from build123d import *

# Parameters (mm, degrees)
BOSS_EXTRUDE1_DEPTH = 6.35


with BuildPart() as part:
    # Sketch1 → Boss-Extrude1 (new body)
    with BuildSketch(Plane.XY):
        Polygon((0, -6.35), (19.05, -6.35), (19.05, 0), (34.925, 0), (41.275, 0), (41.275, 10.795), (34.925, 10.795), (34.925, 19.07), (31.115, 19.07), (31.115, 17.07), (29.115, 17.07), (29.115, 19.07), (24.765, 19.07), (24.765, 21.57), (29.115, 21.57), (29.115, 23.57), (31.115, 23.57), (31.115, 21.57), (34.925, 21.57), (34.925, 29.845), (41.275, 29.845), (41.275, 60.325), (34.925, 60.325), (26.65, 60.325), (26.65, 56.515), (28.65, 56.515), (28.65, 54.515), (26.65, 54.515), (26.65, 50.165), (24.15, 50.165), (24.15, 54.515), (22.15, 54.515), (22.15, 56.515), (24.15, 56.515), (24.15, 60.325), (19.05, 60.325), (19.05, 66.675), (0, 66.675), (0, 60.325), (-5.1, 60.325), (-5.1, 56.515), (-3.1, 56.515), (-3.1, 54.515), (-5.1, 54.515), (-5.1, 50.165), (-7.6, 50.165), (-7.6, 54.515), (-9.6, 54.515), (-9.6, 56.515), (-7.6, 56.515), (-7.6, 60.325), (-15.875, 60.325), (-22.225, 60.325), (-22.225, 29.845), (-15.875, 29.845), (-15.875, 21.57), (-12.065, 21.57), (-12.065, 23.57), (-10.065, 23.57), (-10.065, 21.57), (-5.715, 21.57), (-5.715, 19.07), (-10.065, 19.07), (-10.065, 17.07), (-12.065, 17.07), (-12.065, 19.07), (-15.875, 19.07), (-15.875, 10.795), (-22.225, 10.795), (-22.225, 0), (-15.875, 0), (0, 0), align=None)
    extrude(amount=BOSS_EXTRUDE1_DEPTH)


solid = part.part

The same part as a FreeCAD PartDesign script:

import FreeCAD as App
import Part
import Sketcher

V = App.Vector
Q = App.Units.Quantity

doc = App.newDocument("Part")
body = doc.addObject("PartDesign::Body", "Body")

sketch1 = body.newObject("Sketcher::SketchObject", "Sketch")
sketch1.AttachmentSupport = (doc.getObject("XY_Plane"), [""])
sketch1.MapMode = "FlatFace"
sketch1.addGeometry(Part.LineSegment(V(0, -6.3, 0), V(19.1, -6.3, 0)), False)
sketch1.addGeometry(Part.LineSegment(V(19.1, -6.3, 0), V(19.1, 0, 0)), False)
sketch1.addGeometry(Part.LineSegment(V(19.1, 0, 0), V(41.3, 0, 0)), False)
sketch1.addGeometry(Part.LineSegment(V(41.3, 0, 0), V(41.3, 10.8, 0)), False)
sketch1.addGeometry(Part.LineSegment(V(41.3, 10.8, 0), V(34.9, 10.8, 0)), False)
sketch1.addGeometry(Part.LineSegment(V(34.9, 10.8, 0), V(34.9, 19.1, 0)), False)
sketch1.addGeometry(Part.LineSegment(V(34.9, 19.1, 0), V(31.1, 19.1, 0)), False)
sketch1.addGeometry(Part.LineSegment(V(31.1, 19.1, 0), V(31.1, 17.1, 0)), False)
sketch1.addGeometry(Part.LineSegment(V(31.1, 17.1, 0), V(29.1, 17.1, 0)), False)
sketch1.addGeometry(Part.LineSegment(V(29.1, 17.1, 0), V(29.1, 19.1, 0)), False)
sketch1.addGeometry(Part.LineSegment(V(29.1, 19.1, 0), V(24.8, 19.1, 0)), False)
sketch1.addGeometry(Part.LineSegment(V(24.8, 19.1, 0), V(24.8, 21.6, 0)), False)
sketch1.addGeometry(Part.LineSegment(V(24.8, 21.6, 0), V(29.1, 21.6, 0)), False)
sketch1.addGeometry(Part.LineSegment(V(29.1, 21.6, 0), V(29.1, 23.6, 0)), False)
sketch1.addGeometry(Part.LineSegment(V(29.1, 23.6, 0), V(31.1, 23.6, 0)), False)
sketch1.addGeometry(Part.LineSegment(V(31.1, 23.6, 0), V(31.1, 21.6, 0)), False)
sketch1.addGeometry(Part.LineSegment(V(31.1, 21.6, 0), V(34.9, 21.6, 0)), False)
sketch1.addGeometry(Part.LineSegment(V(34.9, 21.6, 0), V(34.9, 29.8, 0)), False)
sketch1.addGeometry(Part.LineSegment(V(34.9, 29.8, 0), V(41.3, 29.8, 0)), False)
sketch1.addGeometry(Part.LineSegment(V(41.3, 29.8, 0), V(41.3, 60.3, 0)), False)
sketch1.addGeometry(Part.LineSegment(V(41.3, 60.3, 0), V(26.6, 60.3, 0)), False)
sketch1.addGeometry(Part.LineSegment(V(26.6, 60.3, 0), V(26.6, 56.5, 0)), False)
sketch1.addGeometry(Part.LineSegment(V(26.6, 56.5, 0), V(28.6, 56.5, 0)), False)
sketch1.addGeometry(Part.LineSegment(V(28.6, 56.5, 0), V(28.6, 54.5, 0)), False)
sketch1.addGeometry(Part.LineSegment(V(28.6, 54.5, 0), V(26.6, 54.5, 0)), False)
sketch1.addGeometry(Part.LineSegment(V(26.6, 54.5, 0), V(26.6, 50.2, 0)), False)
sketch1.addGeometry(Part.LineSegment(V(26.6, 50.2, 0), V(24.1, 50.2, 0)), False)
sketch1.addGeometry(Part.LineSegment(V(24.1, 50.2, 0), V(24.1, 54.5, 0)), False)
sketch1.addGeometry(Part.LineSegment(V(24.1, 54.5, 0), V(22.1, 54.5, 0)), False)
sketch1.addGeometry(Part.LineSegment(V(22.1, 54.5, 0), V(22.1, 56.5, 0)), False)
sketch1.addGeometry(Part.LineSegment(V(22.1, 56.5, 0), V(24.1, 56.5, 0)), False)
sketch1.addGeometry(Part.LineSegment(V(24.1, 56.5, 0), V(24.1, 60.3, 0)), False)
sketch1.addGeometry(Part.LineSegment(V(24.1, 60.3, 0), V(19.1, 60.3, 0)), False)
sketch1.addGeometry(Part.LineSegment(V(19.1, 60.3, 0), V(19.1, 66.7, 0)), False)
sketch1.addGeometry(Part.LineSegment(V(19.1, 66.7, 0), V(0, 66.7, 0)), False)
sketch1.addGeometry(Part.LineSegment(V(0, 66.7, 0), V(0, 60.3, 0)), False)
sketch1.addGeometry(Part.LineSegment(V(0, 60.3, 0), V(-5.1, 60.3, 0)), False)
sketch1.addGeometry(Part.LineSegment(V(-5.1, 60.3, 0), V(-5.1, 56.5, 0)), False)
sketch1.addGeometry(Part.LineSegment(V(-5.1, 56.5, 0), V(-3.1, 56.5, 0)), False)
sketch1.addGeometry(Part.LineSegment(V(-3.1, 56.5, 0), V(-3.1, 54.5, 0)), False)
sketch1.addGeometry(Part.LineSegment(V(-3.1, 54.5, 0), V(-5.1, 54.5, 0)), False)
sketch1.addGeometry(Part.LineSegment(V(-5.1, 54.5, 0), V(-5.1, 50.2, 0)), False)
sketch1.addGeometry(Part.LineSegment(V(-5.1, 50.2, 0), V(-7.6, 50.2, 0)), False)
sketch1.addGeometry(Part.LineSegment(V(-7.6, 50.2, 0), V(-7.6, 54.5, 0)), False)
sketch1.addGeometry(Part.LineSegment(V(-7.6, 54.5, 0), V(-9.6, 54.5, 0)), False)
sketch1.addGeometry(Part.LineSegment(V(-9.6, 54.5, 0), V(-9.6, 56.5, 0)), False)
sketch1.addGeometry(Part.LineSegment(V(-9.6, 56.5, 0), V(-7.6, 56.5, 0)), False)
sketch1.addGeometry(Part.LineSegment(V(-7.6, 56.5, 0), V(-7.6, 60.3, 0)), False)
sketch1.addGeometry(Part.LineSegment(V(-7.6, 60.3, 0), V(-22.2, 60.3, 0)), False)
sketch1.addGeometry(Part.LineSegment(V(-22.2, 60.3, 0), V(-22.2, 29.8, 0)), False)
sketch1.addGeometry(Part.LineSegment(V(-22.2, 29.8, 0), V(-15.9, 29.8, 0)), False)
sketch1.addGeometry(Part.LineSegment(V(-15.9, 29.8, 0), V(-15.9, 21.6, 0)), False)
sketch1.addGeometry(Part.LineSegment(V(-15.9, 21.6, 0), V(-12.1, 21.6, 0)), False)
sketch1.addGeometry(Part.LineSegment(V(-12.1, 21.6, 0), V(-12.1, 23.6, 0)), False)
sketch1.addGeometry(Part.LineSegment(V(-12.1, 23.6, 0), V(-10.1, 23.6, 0)), False)
sketch1.addGeometry(Part.LineSegment(V(-10.1, 23.6, 0), V(-10.1, 21.6, 0)), False)
sketch1.addGeometry(Part.LineSegment(V(-10.1, 21.6, 0), V(-5.7, 21.6, 0)), False)
sketch1.addGeometry(Part.LineSegment(V(-5.7, 21.6, 0), V(-5.7, 19.1, 0)), False)
sketch1.addGeometry(Part.LineSegment(V(-5.7, 19.1, 0), V(-10.1, 19.1, 0)), False)
sketch1.addGeometry(Part.LineSegment(V(-10.1, 19.1, 0), V(-10.1, 17.1, 0)), False)
sketch1.addGeometry(Part.LineSegment(V(-10.1, 17.1, 0), V(-12.1, 17.1, 0)), False)
sketch1.addGeometry(Part.LineSegment(V(-12.1, 17.1, 0), V(-12.1, 19.1, 0)), False)
sketch1.addGeometry(Part.LineSegment(V(-12.1, 19.1, 0), V(-15.9, 19.1, 0)), False)
sketch1.addGeometry(Part.LineSegment(V(-15.9, 19.1, 0), V(-15.9, 10.8, 0)), False)
sketch1.addGeometry(Part.LineSegment(V(-15.9, 10.8, 0), V(-22.2, 10.8, 0)), False)
sketch1.addGeometry(Part.LineSegment(V(-22.2, 10.8, 0), V(-22.2, 0, 0)), False)
sketch1.addGeometry(Part.LineSegment(V(-22.2, 0, 0), V(0, 0, 0)), False)
sketch1.addGeometry(Part.LineSegment(V(0, 0, 0), V(0, -6.3, 0)), False)
sketch1.addConstraint(Sketcher.Constraint("Coincident", 0, 2, 1, 1))
sketch1.addConstraint(Sketcher.Constraint("Coincident", 1, 2, 2, 1))
sketch1.addConstraint(Sketcher.Constraint("Coincident", 2, 2, 3, 1))
sketch1.addConstraint(Sketcher.Constraint("Coincident", 3, 2, 4, 1))
sketch1.addConstraint(Sketcher.Constraint("Coincident", 4, 2, 5, 1))
sketch1.addConstraint(Sketcher.Constraint("Coincident", 5, 2, 6, 1))
sketch1.addConstraint(Sketcher.Constraint("Coincident", 6, 2, 7, 1))
sketch1.addConstraint(Sketcher.Constraint("Coincident", 7, 2, 8, 1))
sketch1.addConstraint(Sketcher.Constraint("Coincident", 8, 2, 9, 1))
sketch1.addConstraint(Sketcher.Constraint("Coincident", 9, 2, 10, 1))
sketch1.addConstraint(Sketcher.Constraint("Coincident", 10, 2, 11, 1))
sketch1.addConstraint(Sketcher.Constraint("Coincident", 11, 2, 12, 1))
sketch1.addConstraint(Sketcher.Constraint("Coincident", 12, 2, 13, 1))
sketch1.addConstraint(Sketcher.Constraint("Coincident", 13, 2, 14, 1))
sketch1.addConstraint(Sketcher.Constraint("Coincident", 14, 2, 15, 1))
sketch1.addConstraint(Sketcher.Constraint("Coincident", 15, 2, 16, 1))
sketch1.addConstraint(Sketcher.Constraint("Coincident", 16, 2, 17, 1))
sketch1.addConstraint(Sketcher.Constraint("Coincident", 17, 2, 18, 1))
sketch1.addConstraint(Sketcher.Constraint("Coincident", 18, 2, 19, 1))
sketch1.addConstraint(Sketcher.Constraint("Coincident", 19, 2, 20, 1))
sketch1.addConstraint(Sketcher.Constraint("Coincident", 20, 2, 21, 1))
sketch1.addConstraint(Sketcher.Constraint("Coincident", 21, 2, 22, 1))
sketch1.addConstraint(Sketcher.Constraint("Coincident", 22, 2, 23, 1))
sketch1.addConstraint(Sketcher.Constraint("Coincident", 23, 2, 24, 1))
sketch1.addConstraint(Sketcher.Constraint("Coincident", 24, 2, 25, 1))
sketch1.addConstraint(Sketcher.Constraint("Coincident", 25, 2, 26, 1))
sketch1.addConstraint(Sketcher.Constraint("Coincident", 26, 2, 27, 1))
sketch1.addConstraint(Sketcher.Constraint("Coincident", 27, 2, 28, 1))
sketch1.addConstraint(Sketcher.Constraint("Coincident", 28, 2, 29, 1))
sketch1.addConstraint(Sketcher.Constraint("Coincident", 29, 2, 30, 1))
sketch1.addConstraint(Sketcher.Constraint("Coincident", 30, 2, 31, 1))
sketch1.addConstraint(Sketcher.Constraint("Coincident", 31, 2, 32, 1))
sketch1.addConstraint(Sketcher.Constraint("Coincident", 32, 2, 33, 1))
sketch1.addConstraint(Sketcher.Constraint("Coincident", 33, 2, 34, 1))
sketch1.addConstraint(Sketcher.Constraint("Coincident", 34, 2, 35, 1))
sketch1.addConstraint(Sketcher.Constraint("Coincident", 35, 2, 36, 1))
sketch1.addConstraint(Sketcher.Constraint("Coincident", 36, 2, 37, 1))
sketch1.addConstraint(Sketcher.Constraint("Coincident", 37, 2, 38, 1))
sketch1.addConstraint(Sketcher.Constraint("Coincident", 38, 2, 39, 1))
sketch1.addConstraint(Sketcher.Constraint("Coincident", 39, 2, 40, 1))
sketch1.addConstraint(Sketcher.Constraint("Coincident", 40, 2, 41, 1))
sketch1.addConstraint(Sketcher.Constraint("Coincident", 41, 2, 42, 1))
sketch1.addConstraint(Sketcher.Constraint("Coincident", 42, 2, 43, 1))
sketch1.addConstraint(Sketcher.Constraint("Coincident", 43, 2, 44, 1))
sketch1.addConstraint(Sketcher.Constraint("Coincident", 44, 2, 45, 1))
sketch1.addConstraint(Sketcher.Constraint("Coincident", 45, 2, 46, 1))
sketch1.addConstraint(Sketcher.Constraint("Coincident", 46, 2, 47, 1))
sketch1.addConstraint(Sketcher.Constraint("Coincident", 47, 2, 48, 1))
sketch1.addConstraint(Sketcher.Constraint("Coincident", 48, 2, 49, 1))
sketch1.addConstraint(Sketcher.Constraint("Coincident", 49, 2, 50, 1))
sketch1.addConstraint(Sketcher.Constraint("Coincident", 50, 2, 51, 1))
sketch1.addConstraint(Sketcher.Constraint("Coincident", 51, 2, 52, 1))
sketch1.addConstraint(Sketcher.Constraint("Coincident", 52, 2, 53, 1))
sketch1.addConstraint(Sketcher.Constraint("Coincident", 53, 2, 54, 1))
sketch1.addConstraint(Sketcher.Constraint("Coincident", 54, 2, 55, 1))
sketch1.addConstraint(Sketcher.Constraint("Coincident", 55, 2, 56, 1))
sketch1.addConstraint(Sketcher.Constraint("Coincident", 56, 2, 57, 1))
sketch1.addConstraint(Sketcher.Constraint("Coincident", 57, 2, 58, 1))
sketch1.addConstraint(Sketcher.Constraint("Coincident", 58, 2, 59, 1))
sketch1.addConstraint(Sketcher.Constraint("Coincident", 59, 2, 60, 1))
sketch1.addConstraint(Sketcher.Constraint("Coincident", 60, 2, 61, 1))
sketch1.addConstraint(Sketcher.Constraint("Coincident", 61, 2, 62, 1))
sketch1.addConstraint(Sketcher.Constraint("Coincident", 62, 2, 63, 1))
sketch1.addConstraint(Sketcher.Constraint("Coincident", 63, 2, 64, 1))
sketch1.addConstraint(Sketcher.Constraint("Coincident", 64, 2, 65, 1))
sketch1.addConstraint(Sketcher.Constraint("Coincident", 65, 2, 66, 1))
sketch1.addConstraint(Sketcher.Constraint("Coincident", 66, 2, 67, 1))
sketch1.addConstraint(Sketcher.Constraint("Coincident", 67, 2, 0, 1))
sketch1.addConstraint(Sketcher.Constraint("Horizontal", 0))
sketch1.addConstraint(Sketcher.Constraint("Vertical", 1))
sketch1.addConstraint(Sketcher.Constraint("Horizontal", 2))
sketch1.addConstraint(Sketcher.Constraint("Vertical", 3))
sketch1.addConstraint(Sketcher.Constraint("Horizontal", 4))
sketch1.addConstraint(Sketcher.Constraint("Vertical", 5))
sketch1.addConstraint(Sketcher.Constraint("Horizontal", 6))
sketch1.addConstraint(Sketcher.Constraint("Vertical", 7))
sketch1.addConstraint(Sketcher.Constraint("Horizontal", 8))
sketch1.addConstraint(Sketcher.Constraint("Vertical", 9))
sketch1.addConstraint(Sketcher.Constraint("Horizontal", 10))
sketch1.addConstraint(Sketcher.Constraint("Vertical", 11))
sketch1.addConstraint(Sketcher.Constraint("Horizontal", 12))
sketch1.addConstraint(Sketcher.Constraint("Vertical", 13))
sketch1.addConstraint(Sketcher.Constraint("Horizontal", 14))
sketch1.addConstraint(Sketcher.Constraint("Vertical", 15))
sketch1.addConstraint(Sketcher.Constraint("Horizontal", 16))
sketch1.addConstraint(Sketcher.Constraint("Vertical", 17))
sketch1.addConstraint(Sketcher.Constraint("Horizontal", 18))
sketch1.addConstraint(Sketcher.Constraint("Vertical", 19))
sketch1.addConstraint(Sketcher.Constraint("Horizontal", 20))
sketch1.addConstraint(Sketcher.Constraint("Vertical", 21))
sketch1.addConstraint(Sketcher.Constraint("Horizontal", 22))
sketch1.addConstraint(Sketcher.Constraint("Vertical", 23))
sketch1.addConstraint(Sketcher.Constraint("Horizontal", 24))
sketch1.addConstraint(Sketcher.Constraint("Vertical", 25))
sketch1.addConstraint(Sketcher.Constraint("Horizontal", 26))
sketch1.addConstraint(Sketcher.Constraint("Vertical", 27))
sketch1.addConstraint(Sketcher.Constraint("Horizontal", 28))
sketch1.addConstraint(Sketcher.Constraint("Vertical", 29))
sketch1.addConstraint(Sketcher.Constraint("Horizontal", 30))
sketch1.addConstraint(Sketcher.Constraint("Vertical", 31))
sketch1.addConstraint(Sketcher.Constraint("Horizontal", 32))
sketch1.addConstraint(Sketcher.Constraint("Vertical", 33))
sketch1.addConstraint(Sketcher.Constraint("Horizontal", 34))
sketch1.addConstraint(Sketcher.Constraint("Vertical", 35))
sketch1.addConstraint(Sketcher.Constraint("Horizontal", 36))
sketch1.addConstraint(Sketcher.Constraint("Vertical", 37))
sketch1.addConstraint(Sketcher.Constraint("Horizontal", 38))
sketch1.addConstraint(Sketcher.Constraint("Vertical", 39))
sketch1.addConstraint(Sketcher.Constraint("Horizontal", 40))
sketch1.addConstraint(Sketcher.Constraint("Vertical", 41))
sketch1.addConstraint(Sketcher.Constraint("Horizontal", 42))
sketch1.addConstraint(Sketcher.Constraint("Vertical", 43))
sketch1.addConstraint(Sketcher.Constraint("Horizontal", 44))
sketch1.addConstraint(Sketcher.Constraint("Vertical", 45))
sketch1.addConstraint(Sketcher.Constraint("Horizontal", 46))
sketch1.addConstraint(Sketcher.Constraint("Vertical", 47))
sketch1.addConstraint(Sketcher.Constraint("Horizontal", 48))
sketch1.addConstraint(Sketcher.Constraint("Vertical", 49))
sketch1.addConstraint(Sketcher.Constraint("Horizontal", 50))
sketch1.addConstraint(Sketcher.Constraint("Vertical", 51))
sketch1.addConstraint(Sketcher.Constraint("Horizontal", 52))
sketch1.addConstraint(Sketcher.Constraint("Vertical", 53))
sketch1.addConstraint(Sketcher.Constraint("Horizontal", 54))
sketch1.addConstraint(Sketcher.Constraint("Vertical", 55))
sketch1.addConstraint(Sketcher.Constraint("Horizontal", 56))
sketch1.addConstraint(Sketcher.Constraint("Vertical", 57))
sketch1.addConstraint(Sketcher.Constraint("Horizontal", 58))
sketch1.addConstraint(Sketcher.Constraint("Vertical", 59))
sketch1.addConstraint(Sketcher.Constraint("Horizontal", 60))
sketch1.addConstraint(Sketcher.Constraint("Vertical", 61))
sketch1.addConstraint(Sketcher.Constraint("Horizontal", 62))
sketch1.addConstraint(Sketcher.Constraint("Vertical", 63))
sketch1.addConstraint(Sketcher.Constraint("Horizontal", 64))
sketch1.addConstraint(Sketcher.Constraint("Vertical", 65))
sketch1.addConstraint(Sketcher.Constraint("Horizontal", 66))
sketch1.addConstraint(Sketcher.Constraint("Vertical", 67))
sketch1.addConstraint(Sketcher.Constraint("Coincident", 66, 2, -1, 1))
sketch1.addConstraint(Sketcher.Constraint("PointOnObject", 1, 2, -1))
sketch1.addConstraint(Sketcher.Constraint("PointOnObject", 34, 2, -2))
sketch1.addConstraint(Sketcher.Constraint("Horizontal", 6, 2, 9, 2))
sketch1.addConstraint(Sketcher.Constraint("Horizontal", 12, 2, 15, 2))
sketch1.addConstraint(Sketcher.Constraint("Horizontal", 24, 2, 27, 2))
sketch1.addConstraint(Sketcher.Constraint("Horizontal", 22, 2, 29, 2))
sketch1.addConstraint(Sketcher.Constraint("Horizontal", 20, 2, 31, 2))
sketch1.addConstraint(Sketcher.Constraint("Horizontal", 32, 2, 35, 2))
sketch1.addConstraint(Sketcher.Constraint("Horizontal", 30, 2, 37, 2))
sketch1.addConstraint(Sketcher.Constraint("Horizontal", 28, 2, 39, 2))
sketch1.addConstraint(Sketcher.Constraint("Horizontal", 26, 2, 41, 2))
sketch1.addConstraint(Sketcher.Constraint("Horizontal", 40, 2, 43, 2))
sketch1.addConstraint(Sketcher.Constraint("Horizontal", 38, 2, 45, 2))
sketch1.addConstraint(Sketcher.Constraint("Horizontal", 36, 2, 47, 2))
sketch1.addConstraint(Sketcher.Constraint("Horizontal", 18, 2, 49, 2))
sketch1.addConstraint(Sketcher.Constraint("Horizontal", 16, 2, 51, 2))
sketch1.addConstraint(Sketcher.Constraint("Horizontal", 14, 2, 53, 2))
sketch1.addConstraint(Sketcher.Constraint("Horizontal", 52, 2, 55, 2))
sketch1.addConstraint(Sketcher.Constraint("Horizontal", 10, 2, 57, 2))
sketch1.addConstraint(Sketcher.Constraint("Horizontal", 8, 2, 59, 2))
sketch1.addConstraint(Sketcher.Constraint("Horizontal", 58, 2, 61, 2))
sketch1.addConstraint(Sketcher.Constraint("Horizontal", 4, 2, 63, 2))
sketch1.addConstraint(Sketcher.Constraint("Vertical", 9, 2, 12, 2))
sketch1.addConstraint(Sketcher.Constraint("Vertical", 7, 2, 14, 2))
sketch1.addConstraint(Sketcher.Constraint("Vertical", 5, 2, 16, 2))
sketch1.addConstraint(Sketcher.Constraint("Vertical", 3, 2, 18, 2))
sketch1.addConstraint(Sketcher.Constraint("Vertical", 21, 2, 24, 2))
sketch1.addConstraint(Sketcher.Constraint("Vertical", 27, 2, 30, 2))
sketch1.addConstraint(Sketcher.Constraint("Vertical", 1, 2, 32, 2))
sketch1.addConstraint(Sketcher.Constraint("Vertical", 37, 2, 40, 2))
sketch1.addConstraint(Sketcher.Constraint("Vertical", 43, 2, 46, 2))
sketch1.addConstraint(Sketcher.Constraint("Vertical", 55, 2, 58, 2))
sketch1.addConstraint(Sketcher.Constraint("Vertical", 53, 2, 60, 2))
sketch1.addConstraint(Sketcher.Constraint("Vertical", 51, 2, 62, 2))
sketch1.addConstraint(Sketcher.Constraint("Vertical", 49, 2, 64, 2))
sketch1.addConstraint(Sketcher.Constraint("Equal", 14, 22))
sketch1.addConstraint(Sketcher.Constraint("Equal", 24, 28))
sketch1.addConstraint(Sketcher.Constraint("Equal", 32, 36))
sketch1.addConstraint(Sketcher.Constraint("Equal", 30, 38))
sketch1.addConstraint(Sketcher.Constraint("Equal", 26, 42))
sketch1.addConstraint(Sketcher.Constraint("Equal", 40, 44))
sketch1.addConstraint(Sketcher.Constraint("Equal", 20, 48))
sketch1.addConstraint(Sketcher.Constraint("Equal", 18, 50))
sketch1.addConstraint(Sketcher.Constraint("Equal", 16, 52))
sketch1.addConstraint(Sketcher.Constraint("Equal", 46, 54))
sketch1.addConstraint(Sketcher.Constraint("Equal", 12, 56))
sketch1.addConstraint(Sketcher.Constraint("Equal", 64, 1))
sketch1.addConstraint(Sketcher.Constraint("Equal", 60, 7))
sketch1.addConstraint(Sketcher.Constraint("Equal", 42, 11))
sketch1.addConstraint(Sketcher.Constraint("Equal", 9, 13))
sketch1.addConstraint(Sketcher.Constraint("Equal", 5, 17))
sketch1.addConstraint(Sketcher.Constraint("Equal", 62, 21))
sketch1.addConstraint(Sketcher.Constraint("Equal", 15, 23))
sketch1.addConstraint(Sketcher.Constraint("Equal", 58, 25))
sketch1.addConstraint(Sketcher.Constraint("Equal", 1, 33))
sketch1.addConstraint(Sketcher.Constraint("DistanceY", 19, 1, 19, 2, Q("1.2 in")))
sketch1.addConstraint(Sketcher.Constraint("DistanceX", 0, 1, 0, 2, Q("0.75 in")))
sketch1.addConstraint(Sketcher.Constraint("DistanceX", 4, 2, 4, 1, Q("0.25 in")))
sketch1.addConstraint(Sketcher.Constraint("DistanceX", 6, 2, 6, 1, Q("0.15 in")))
sketch1.addConstraint(Sketcher.Constraint("DistanceX", 2, 1, 2, 2, Q("0.875 in")))
sketch1.addConstraint(Sketcher.Constraint("DistanceY", 3, 1, 3, 2, Q("0.425 in")))
sketch1.addConstraint(Sketcher.Constraint("DistanceX", -1, 1, 10, 2, Q("0.975 in")))
sketch1.addConstraint(Sketcher.Constraint("DistanceY", -1, 1, 17, 2, Q("1.175 in")))
sketch1.addConstraint(Sketcher.Constraint("DistanceX", 8, 2, 8, 1, Q("2 mm")))
sketch1.addConstraint(Sketcher.Constraint("DistanceX", 20, 2, 20, 1, Q("14.625 mm")))
sketch1.addConstraint(Sketcher.Constraint("DistanceX", 26, 2, 26, 1, Q("2.5 mm")))
pad1 = body.newObject("PartDesign::Pad", "Pad")
pad1.Profile = sketch1
pad1.Length = Q("0.25 in")

doc.recompute()
